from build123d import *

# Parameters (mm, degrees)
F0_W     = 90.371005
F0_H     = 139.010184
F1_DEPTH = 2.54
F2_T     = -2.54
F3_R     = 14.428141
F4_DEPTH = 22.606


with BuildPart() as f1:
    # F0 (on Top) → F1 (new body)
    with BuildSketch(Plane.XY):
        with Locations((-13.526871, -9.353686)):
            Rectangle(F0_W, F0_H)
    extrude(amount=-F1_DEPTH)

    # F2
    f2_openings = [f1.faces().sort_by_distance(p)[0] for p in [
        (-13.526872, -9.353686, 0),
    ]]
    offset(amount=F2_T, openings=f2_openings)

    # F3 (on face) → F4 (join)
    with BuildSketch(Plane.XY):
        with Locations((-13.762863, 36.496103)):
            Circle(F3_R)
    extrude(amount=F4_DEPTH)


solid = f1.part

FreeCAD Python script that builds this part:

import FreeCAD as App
import Part
import Sketcher
from FreeCAD import Vector
Q = App.Units.Quantity


def faces_at(feature, points):
    """Names of the faces that lie closest to the given points."""
    faces = feature.Shape.Faces
    near = lambda p: min(range(len(faces)), key=lambda i: faces[i].distToShape(Part.Vertex(*p))[0])
    return sorted({f"Face{near(p) + 1}" for p in points})

doc = App.newDocument("Part")
body = doc.addObject("PartDesign::Body", "Body")

# Sketch on XY plane
sketch1 = body.newObject("Sketcher::SketchObject", "Sketch")
sketch1.AttachmentSupport = (doc.getObject("XY_Plane"), [""])
sketch1.MapMode = "FlatFace"
sketch1.addGeometry([
    Part.LineSegment(Vector(-58.712373, 60.151406, 0), Vector(-58.712373, -78.858778, 0)),
    Part.LineSegment(Vector(-58.712373, -78.858778, 0), Vector(31.658631, -78.858778, 0)),
    Part.LineSegment(Vector(31.658631, -78.858778, 0), Vector(31.658631, 60.151406, 0)),
    Part.LineSegment(Vector(31.658631, 60.151406, 0), Vector(-58.712373, 60.151406, 0)),
], False)
sketch1.addConstraint([
    Sketcher.Constraint("Coincident", 0, 2, 1, 1),
    Sketcher.Constraint("Coincident", 1, 2, 2, 1),
    Sketcher.Constraint("Coincident", 2, 2, 3, 1),
    Sketcher.Constraint("Coincident", 3, 2, 0, 1),
    Sketcher.Constraint("Vertical", 0),
    Sketcher.Constraint("Horizontal", 1),
    Sketcher.Constraint("Vertical", 2),
    Sketcher.Constraint("Horizontal", 3),
    Sketcher.Constraint("DistanceX", 1, 1, 1, 2, Q("90.371005 mm")),
    Sketcher.Constraint("DistanceY", 0, 2, 0, 1, Q("139.010184 mm")),
    Sketcher.Constraint("DistanceY", 0, 2, -1, 1, Q("78.858778 mm")),
    Sketcher.Constraint("DistanceX", -1, 1, 1, 2, Q("31.658631 mm")),
])
pad1 = body.newObject("PartDesign::Pad", "Pad")
pad1.Profile = sketch1
pad1.Length = Q("0.1 in")
pad1.Reversed = True
doc.recompute()

thickness = body.newObject("PartDesign::Thickness", "Thickness")
thickness.Base = (pad1, faces_at(pad1, [(-13.527, -9.354, 0)]))
thickness.Value = Q("0.1 in")
thickness.Reversed = True
thickness.Join = "Arc"

# Sketch on XY plane
sketch2 = body.newObject("Sketcher::SketchObject", "Sketch001")
sketch2.AttachmentSupport = (doc.getObject("XY_Plane"), [""])
sketch2.MapMode = "FlatFace"
sketch2.addGeometry(Part.Circle(Vector(-13.762863, 36.496103, 0), Vector(0, 0, 1), 14.428141), False)
sketch2.addConstraint([
    Sketcher.Constraint("Diameter", 0, Q("28.856282 mm")),
    Sketcher.Constraint("DistanceX", 0, 3, -1, 1, Q("13.762863 mm")),
    Sketcher.Constraint("DistanceY", -1, 1, 0, 3, Q("36.496103 mm")),
])
pad2 = body.newObject("PartDesign::Pad", "Pad001")
pad2.Profile = sketch2
pad2.Length = Q("0.89 in")

doc.recompute()
